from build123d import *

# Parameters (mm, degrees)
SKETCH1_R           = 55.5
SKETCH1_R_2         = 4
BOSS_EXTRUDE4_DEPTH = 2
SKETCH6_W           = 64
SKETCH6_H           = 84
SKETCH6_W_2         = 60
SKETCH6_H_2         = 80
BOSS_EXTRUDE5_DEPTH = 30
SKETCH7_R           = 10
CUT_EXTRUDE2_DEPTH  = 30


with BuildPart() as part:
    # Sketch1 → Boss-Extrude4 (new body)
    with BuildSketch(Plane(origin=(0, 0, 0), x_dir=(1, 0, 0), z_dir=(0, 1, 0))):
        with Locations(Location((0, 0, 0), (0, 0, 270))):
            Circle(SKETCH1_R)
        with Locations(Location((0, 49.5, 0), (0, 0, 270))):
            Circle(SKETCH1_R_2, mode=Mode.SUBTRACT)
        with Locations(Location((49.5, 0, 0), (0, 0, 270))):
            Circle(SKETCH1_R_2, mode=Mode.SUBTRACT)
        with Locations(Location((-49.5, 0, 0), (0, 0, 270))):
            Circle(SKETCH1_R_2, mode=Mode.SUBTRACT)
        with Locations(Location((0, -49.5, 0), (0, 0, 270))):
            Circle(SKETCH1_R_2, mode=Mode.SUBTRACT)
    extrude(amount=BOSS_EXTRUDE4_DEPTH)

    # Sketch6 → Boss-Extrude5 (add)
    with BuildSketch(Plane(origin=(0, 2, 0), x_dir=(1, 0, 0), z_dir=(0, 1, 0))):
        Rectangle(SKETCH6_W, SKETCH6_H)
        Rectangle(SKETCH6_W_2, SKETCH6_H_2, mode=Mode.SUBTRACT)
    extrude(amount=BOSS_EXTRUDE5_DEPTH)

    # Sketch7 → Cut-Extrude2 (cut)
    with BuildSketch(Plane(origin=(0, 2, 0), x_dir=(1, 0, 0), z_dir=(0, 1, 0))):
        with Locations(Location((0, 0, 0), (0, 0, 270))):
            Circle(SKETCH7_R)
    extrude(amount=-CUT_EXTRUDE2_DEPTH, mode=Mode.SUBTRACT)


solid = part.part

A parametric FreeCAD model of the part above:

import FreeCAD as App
import Part
import Sketcher


def add_polygon(sketch, points):
    """Adds a closed chain of lines whose ends are joined by coincident constraints."""
    first, n = sketch.GeometryCount, len(points)
    for a, b in zip(points, points[1:] + points[:1]):
        sketch.addGeometry(Part.LineSegment(App.Vector(*a, 0), App.Vector(*b, 0)), False)
    for i in range(n):
        sketch.addConstraint(Sketcher.Constraint("Coincident", first + i, 2, first + (i + 1) % n, 1))

doc = App.newDocument("Part")
body = doc.addObject("PartDesign::Body", "Body")

# Sketch on XZ plane
sketch1 = doc.addObject("Sketcher::SketchObject", "Sketch")
body.addObject(sketch1)
sketch1.AttachmentSupport = (doc.XZ_Plane, [""])
sketch1.MapMode = "FlatFace"
sketch1.addGeometry(Part.Circle(App.Vector(0, 0, 0), App.Vector(0, 0, 1), 55.5), False)
sketch1.addGeometry(Part.Circle(App.Vector(0, -49.5, 0), App.Vector(0, 0, 1), 4), False)
sketch1.addGeometry(Part.Circle(App.Vector(-49.5, 0, 0), App.Vector(0, 0, 1), 4), False)
sketch1.addGeometry(Part.Circle(App.Vector(49.5, 0, 0), App.Vector(0, 0, 1), 4), False)
sketch1.addGeometry(Part.Circle(App.Vector(0, 49.5, 0), App.Vector(0, 0, 1), 4), False)
sketch1.addConstraint(Sketcher.Constraint("Coincident", 0, 3, -1, 1))
sketch1.addConstraint(Sketcher.Constraint("Equal", 1, 2))
sketch1.addConstraint(Sketcher.Constraint("Equal", 2, 3))
sketch1.addConstraint(Sketcher.Constraint("Equal", 3, 4))
sketch1.addConstraint(Sketcher.Constraint("Symmetric", 2, 3, 3, 3, -1, 1))
sketch1.addConstraint(Sketcher.Constraint("Symmetric", 1, 3, 4, 3, -1, 1))
sketch1.addConstraint(Sketcher.Constraint("PointOnObject", 1, 3, -2))
sketch1.addConstraint(Sketcher.Constraint("PointOnObject", 2, 3, -1))
sketch1.addConstraint(Sketcher.Constraint("Diameter", 0, 111.0))
sketch1.addConstraint(Sketcher.Constraint("Diameter", 1, 8.0))
sketch1.addConstraint(Sketcher.Constraint("DistanceX", 2, 3, 3, 3, 99.0))
sketch1.addConstraint(Sketcher.Constraint("DistanceY", 1, 3, 4, 3, 99.0))
pad1 = doc.addObject("PartDesign::Pad", "Pad")
body.addObject(pad1)
pad1.Profile = sketch1
pad1.Length = 2
pad1.Reversed = True

# Sketch on XZ plane
sketch2 = doc.addObject("Sketcher::SketchObject", "Sketch001")
body.addObject(sketch2)
sketch2.AttachmentSupport = (doc.XZ_Plane, [""])
sketch2.MapMode = "FlatFace"
sketch2.AttachmentOffset = App.Placement(App.Vector(0, 0, -2), App.Rotation())
add_polygon(sketch2, [(-32, -42), (-32, 42), (32, 42), (32, -42)])  # lines 0-3
add_polygon(sketch2, [(30, 40), (-30, 40), (-30, -40), (30, -40)])  # lines 4-7
sketch2.addConstraint(Sketcher.Constraint("Vertical", 0))
sketch2.addConstraint(Sketcher.Constraint("Horizontal", 1))
sketch2.addConstraint(Sketcher.Constraint("Vertical", 2))
sketch2.addConstraint(Sketcher.Constraint("Horizontal", 3))
sketch2.addConstraint(Sketcher.Constraint("Horizontal", 4))
sketch2.addConstraint(Sketcher.Constraint("Vertical", 5))
sketch2.addConstraint(Sketcher.Constraint("Horizontal", 6))
sketch2.addConstraint(Sketcher.Constraint("Vertical", 7))
sketch2.addConstraint(Sketcher.Constraint("Symmetric", 0, 2, 2, 2, -1, 1))
sketch2.addConstraint(Sketcher.Constraint("Symmetric", 4, 2, 6, 2, -1, 1))
sketch2.addConstraint(Sketcher.Constraint("DistanceX", 1, 1, 1, 2, 64.0))
sketch2.addConstraint(Sketcher.Constraint("DistanceX", 4, 2, 4, 1, 60.0))
sketch2.addConstraint(Sketcher.Constraint("DistanceY", 0, 1, 0, 2, 84.0))
sketch2.addConstraint(Sketcher.Constraint("DistanceY", 5, 2, 5, 1, 80.0))
pad2 = doc.addObject("PartDesign::Pad", "Pad001")
body.addObject(pad2)
pad2.Profile = sketch2
pad2.Length = 30
pad2.Reversed = True

# Sketch on XZ plane
sketch3 = doc.addObject("Sketcher::SketchObject", "Sketch002")
body.addObject(sketch3)
sketch3.AttachmentSupport = (doc.XZ_Plane, [""])
sketch3.MapMode = "FlatFace"
sketch3.AttachmentOffset = App.Placement(App.Vector(0, 0, -2), App.Rotation())
sketch3.addGeometry(Part.Circle(App.Vector(0, 0, 0), App.Vector(0, 0, 1), 10), False)
sketch3.addConstraint(Sketcher.Constraint("Coincident", 0, 3, -1, 1))
sketch3.addConstraint(Sketcher.Constraint("Diameter", 0, 20.0))
pocket1 = doc.addObject("PartDesign::Pocket", "Pocket")
body.addObject(pocket1)
pocket1.Profile = sketch3
pocket1.Length = 30
pocket1.Reversed = True

doc.recompute()
